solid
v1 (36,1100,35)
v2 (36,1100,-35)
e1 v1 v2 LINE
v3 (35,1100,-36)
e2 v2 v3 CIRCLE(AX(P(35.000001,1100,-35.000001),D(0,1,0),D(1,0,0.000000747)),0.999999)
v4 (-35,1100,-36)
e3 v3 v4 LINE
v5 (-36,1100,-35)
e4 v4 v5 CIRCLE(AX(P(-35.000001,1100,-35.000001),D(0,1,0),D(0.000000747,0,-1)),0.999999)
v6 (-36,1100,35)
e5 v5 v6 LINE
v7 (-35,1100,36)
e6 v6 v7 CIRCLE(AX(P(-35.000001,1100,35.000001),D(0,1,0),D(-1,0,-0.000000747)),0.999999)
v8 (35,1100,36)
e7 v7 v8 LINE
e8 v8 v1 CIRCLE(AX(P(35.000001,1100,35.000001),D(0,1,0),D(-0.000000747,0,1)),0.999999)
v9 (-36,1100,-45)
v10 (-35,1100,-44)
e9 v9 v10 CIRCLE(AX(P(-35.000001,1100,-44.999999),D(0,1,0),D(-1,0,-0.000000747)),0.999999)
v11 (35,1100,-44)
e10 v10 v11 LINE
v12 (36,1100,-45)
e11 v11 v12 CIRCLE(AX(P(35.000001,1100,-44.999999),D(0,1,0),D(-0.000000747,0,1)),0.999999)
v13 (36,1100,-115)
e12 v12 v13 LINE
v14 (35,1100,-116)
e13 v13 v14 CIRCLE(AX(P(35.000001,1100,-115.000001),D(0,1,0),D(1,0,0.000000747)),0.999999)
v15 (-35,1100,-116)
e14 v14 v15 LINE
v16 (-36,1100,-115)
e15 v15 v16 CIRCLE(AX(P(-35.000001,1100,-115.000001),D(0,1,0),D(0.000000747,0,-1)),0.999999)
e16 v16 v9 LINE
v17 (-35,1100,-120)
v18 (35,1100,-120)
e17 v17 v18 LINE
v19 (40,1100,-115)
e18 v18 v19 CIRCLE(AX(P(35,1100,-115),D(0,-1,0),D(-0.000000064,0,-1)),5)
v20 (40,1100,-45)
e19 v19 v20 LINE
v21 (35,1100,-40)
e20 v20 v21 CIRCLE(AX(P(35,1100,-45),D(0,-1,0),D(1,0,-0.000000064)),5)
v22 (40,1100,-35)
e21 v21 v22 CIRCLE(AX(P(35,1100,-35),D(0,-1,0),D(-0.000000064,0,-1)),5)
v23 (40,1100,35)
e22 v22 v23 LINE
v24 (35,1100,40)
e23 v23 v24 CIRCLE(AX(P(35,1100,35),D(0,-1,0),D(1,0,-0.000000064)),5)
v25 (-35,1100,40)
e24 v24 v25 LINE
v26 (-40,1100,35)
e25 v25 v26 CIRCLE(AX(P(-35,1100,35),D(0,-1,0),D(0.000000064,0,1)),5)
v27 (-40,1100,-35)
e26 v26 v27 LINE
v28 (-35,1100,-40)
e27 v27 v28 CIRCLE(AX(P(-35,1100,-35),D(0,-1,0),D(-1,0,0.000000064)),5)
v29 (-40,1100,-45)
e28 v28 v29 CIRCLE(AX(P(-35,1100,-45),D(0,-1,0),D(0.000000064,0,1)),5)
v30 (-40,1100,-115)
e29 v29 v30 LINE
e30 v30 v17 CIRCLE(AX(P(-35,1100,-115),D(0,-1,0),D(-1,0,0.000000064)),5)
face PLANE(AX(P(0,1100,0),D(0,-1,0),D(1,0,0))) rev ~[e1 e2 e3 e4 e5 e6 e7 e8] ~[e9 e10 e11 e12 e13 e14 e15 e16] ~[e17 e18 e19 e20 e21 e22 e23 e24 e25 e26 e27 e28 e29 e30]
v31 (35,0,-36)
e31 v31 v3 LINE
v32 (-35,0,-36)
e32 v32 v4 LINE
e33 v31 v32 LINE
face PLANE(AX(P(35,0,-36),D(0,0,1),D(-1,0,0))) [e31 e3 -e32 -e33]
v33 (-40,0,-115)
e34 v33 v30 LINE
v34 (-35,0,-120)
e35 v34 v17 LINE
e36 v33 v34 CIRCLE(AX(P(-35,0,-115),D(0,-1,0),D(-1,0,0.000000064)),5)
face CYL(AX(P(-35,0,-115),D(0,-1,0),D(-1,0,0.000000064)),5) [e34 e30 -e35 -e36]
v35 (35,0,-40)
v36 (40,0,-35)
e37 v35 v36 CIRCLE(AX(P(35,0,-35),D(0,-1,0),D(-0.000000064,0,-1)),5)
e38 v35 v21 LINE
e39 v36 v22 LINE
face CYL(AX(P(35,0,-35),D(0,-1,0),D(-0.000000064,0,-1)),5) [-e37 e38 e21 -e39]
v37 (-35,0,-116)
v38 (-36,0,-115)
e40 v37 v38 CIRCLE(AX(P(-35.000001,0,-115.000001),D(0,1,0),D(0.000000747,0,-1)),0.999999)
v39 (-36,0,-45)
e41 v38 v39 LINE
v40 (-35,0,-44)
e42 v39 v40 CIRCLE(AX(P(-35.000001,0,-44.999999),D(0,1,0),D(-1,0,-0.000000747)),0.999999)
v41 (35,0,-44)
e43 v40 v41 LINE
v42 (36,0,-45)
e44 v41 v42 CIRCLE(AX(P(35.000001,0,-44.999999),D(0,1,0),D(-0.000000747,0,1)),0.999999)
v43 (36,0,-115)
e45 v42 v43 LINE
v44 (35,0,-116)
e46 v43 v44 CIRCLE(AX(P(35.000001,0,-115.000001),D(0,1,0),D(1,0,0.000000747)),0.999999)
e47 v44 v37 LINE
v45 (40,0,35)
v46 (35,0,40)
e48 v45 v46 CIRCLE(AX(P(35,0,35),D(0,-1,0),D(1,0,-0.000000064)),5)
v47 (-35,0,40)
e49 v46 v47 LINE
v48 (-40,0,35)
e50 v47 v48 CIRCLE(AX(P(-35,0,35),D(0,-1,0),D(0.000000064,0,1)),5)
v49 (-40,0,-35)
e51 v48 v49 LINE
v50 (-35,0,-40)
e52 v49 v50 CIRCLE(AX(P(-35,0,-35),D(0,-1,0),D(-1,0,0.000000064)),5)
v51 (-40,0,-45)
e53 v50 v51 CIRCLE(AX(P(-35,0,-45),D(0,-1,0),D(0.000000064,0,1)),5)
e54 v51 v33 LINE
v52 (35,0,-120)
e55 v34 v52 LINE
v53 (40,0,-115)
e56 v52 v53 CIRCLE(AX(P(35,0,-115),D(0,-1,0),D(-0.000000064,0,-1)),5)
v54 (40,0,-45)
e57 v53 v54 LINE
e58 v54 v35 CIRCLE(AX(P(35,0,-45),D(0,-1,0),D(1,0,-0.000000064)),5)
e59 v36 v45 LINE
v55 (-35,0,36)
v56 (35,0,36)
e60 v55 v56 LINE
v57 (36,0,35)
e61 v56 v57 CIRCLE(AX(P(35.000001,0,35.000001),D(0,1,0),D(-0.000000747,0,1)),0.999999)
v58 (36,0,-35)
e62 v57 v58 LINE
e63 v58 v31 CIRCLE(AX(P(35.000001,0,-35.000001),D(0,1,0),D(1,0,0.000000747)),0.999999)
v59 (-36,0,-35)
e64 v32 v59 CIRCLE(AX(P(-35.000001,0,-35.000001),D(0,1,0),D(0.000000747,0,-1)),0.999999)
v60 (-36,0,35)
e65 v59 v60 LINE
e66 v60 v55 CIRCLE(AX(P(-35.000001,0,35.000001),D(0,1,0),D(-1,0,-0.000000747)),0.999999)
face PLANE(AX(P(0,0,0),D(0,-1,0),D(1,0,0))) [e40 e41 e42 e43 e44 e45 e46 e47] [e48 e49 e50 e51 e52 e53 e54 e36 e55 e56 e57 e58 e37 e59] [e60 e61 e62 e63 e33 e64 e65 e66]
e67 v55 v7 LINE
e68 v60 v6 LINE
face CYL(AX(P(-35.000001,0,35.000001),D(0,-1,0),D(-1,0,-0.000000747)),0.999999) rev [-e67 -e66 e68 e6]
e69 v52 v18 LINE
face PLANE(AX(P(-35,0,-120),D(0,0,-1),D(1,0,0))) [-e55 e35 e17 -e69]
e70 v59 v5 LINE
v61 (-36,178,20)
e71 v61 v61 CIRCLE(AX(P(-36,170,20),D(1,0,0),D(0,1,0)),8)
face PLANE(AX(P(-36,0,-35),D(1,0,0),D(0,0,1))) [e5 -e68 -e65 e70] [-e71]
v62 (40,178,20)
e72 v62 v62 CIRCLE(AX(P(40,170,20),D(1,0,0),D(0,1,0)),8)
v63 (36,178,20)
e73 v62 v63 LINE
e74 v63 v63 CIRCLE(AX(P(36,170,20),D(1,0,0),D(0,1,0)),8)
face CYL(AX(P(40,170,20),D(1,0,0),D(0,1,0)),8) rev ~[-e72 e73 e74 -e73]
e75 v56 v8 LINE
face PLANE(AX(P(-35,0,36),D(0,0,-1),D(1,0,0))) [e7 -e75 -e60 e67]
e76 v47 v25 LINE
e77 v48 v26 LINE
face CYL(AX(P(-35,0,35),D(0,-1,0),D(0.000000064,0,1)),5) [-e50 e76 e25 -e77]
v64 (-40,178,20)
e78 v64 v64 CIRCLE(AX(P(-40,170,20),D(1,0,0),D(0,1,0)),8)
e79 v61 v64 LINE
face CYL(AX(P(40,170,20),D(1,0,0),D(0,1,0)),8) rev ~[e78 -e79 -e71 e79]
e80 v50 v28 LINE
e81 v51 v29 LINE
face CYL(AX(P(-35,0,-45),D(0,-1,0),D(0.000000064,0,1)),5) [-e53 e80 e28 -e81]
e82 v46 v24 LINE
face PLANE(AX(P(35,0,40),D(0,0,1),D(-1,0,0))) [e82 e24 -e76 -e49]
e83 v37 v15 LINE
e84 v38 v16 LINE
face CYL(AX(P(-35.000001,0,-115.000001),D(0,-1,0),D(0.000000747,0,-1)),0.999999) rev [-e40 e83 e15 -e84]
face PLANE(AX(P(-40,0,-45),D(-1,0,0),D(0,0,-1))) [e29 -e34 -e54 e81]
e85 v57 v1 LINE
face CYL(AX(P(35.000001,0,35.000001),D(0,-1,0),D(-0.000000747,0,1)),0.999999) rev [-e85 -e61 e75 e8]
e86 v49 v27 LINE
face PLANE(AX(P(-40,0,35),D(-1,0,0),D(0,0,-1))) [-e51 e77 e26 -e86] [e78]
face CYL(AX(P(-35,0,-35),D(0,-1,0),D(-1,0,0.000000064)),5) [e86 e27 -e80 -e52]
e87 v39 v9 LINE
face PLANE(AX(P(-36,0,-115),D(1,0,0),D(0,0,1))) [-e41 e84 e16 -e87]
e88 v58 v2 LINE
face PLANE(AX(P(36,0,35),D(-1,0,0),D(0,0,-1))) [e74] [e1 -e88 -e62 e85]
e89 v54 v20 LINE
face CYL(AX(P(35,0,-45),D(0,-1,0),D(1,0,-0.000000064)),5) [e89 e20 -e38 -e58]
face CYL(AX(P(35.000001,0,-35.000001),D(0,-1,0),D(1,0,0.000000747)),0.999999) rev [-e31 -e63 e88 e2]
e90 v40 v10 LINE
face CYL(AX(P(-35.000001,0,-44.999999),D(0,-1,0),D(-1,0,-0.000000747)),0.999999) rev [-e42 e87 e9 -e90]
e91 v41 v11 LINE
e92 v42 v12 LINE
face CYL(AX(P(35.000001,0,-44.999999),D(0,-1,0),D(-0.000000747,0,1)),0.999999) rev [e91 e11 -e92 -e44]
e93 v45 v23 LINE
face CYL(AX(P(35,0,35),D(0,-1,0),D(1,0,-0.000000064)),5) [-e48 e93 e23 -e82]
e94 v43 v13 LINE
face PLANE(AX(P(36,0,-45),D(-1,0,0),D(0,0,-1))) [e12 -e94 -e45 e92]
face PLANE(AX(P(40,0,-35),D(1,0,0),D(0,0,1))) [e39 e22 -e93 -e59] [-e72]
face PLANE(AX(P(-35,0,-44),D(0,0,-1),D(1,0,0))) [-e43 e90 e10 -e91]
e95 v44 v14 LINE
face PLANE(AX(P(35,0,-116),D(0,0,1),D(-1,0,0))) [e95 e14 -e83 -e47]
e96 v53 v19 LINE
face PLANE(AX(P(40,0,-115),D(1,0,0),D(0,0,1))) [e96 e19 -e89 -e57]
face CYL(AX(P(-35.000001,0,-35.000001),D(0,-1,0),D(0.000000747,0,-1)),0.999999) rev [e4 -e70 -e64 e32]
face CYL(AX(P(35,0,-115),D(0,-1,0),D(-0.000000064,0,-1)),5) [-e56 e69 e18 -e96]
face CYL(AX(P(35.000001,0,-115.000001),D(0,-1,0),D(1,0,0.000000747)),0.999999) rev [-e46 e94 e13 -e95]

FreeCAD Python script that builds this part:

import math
import FreeCAD as App
import Part
import Sketcher

V = App.Vector
Q = App.Units.Quantity

doc = App.newDocument("Part")
body = doc.addObject("PartDesign::Body", "Body")

sketch1 = body.newObject("Sketcher::SketchObject", "Sketch")
sketch1.AttachmentSupport = (doc.getObject("XZ_Plane"), [""])
sketch1.MapMode = "FlatFace"
sketch1.addGeometry(Part.ArcOfCircle(Part.Circle(V(35, 35, 0), V(0, 0, 1), 5), math.radians(0), math.radians(90)), False)
sketch1.addGeometry(Part.LineSegment(V(35, 40, 0), V(-35, 40, 0)), False)
sketch1.addGeometry(Part.ArcOfCircle(Part.Circle(V(-35, 35, 0), V(0, 0, 1), 5), math.radians(90), math.radians(180)), False)
sketch1.addGeometry(Part.LineSegment(V(-40, 35, 0), V(-40, -35, 0)), False)
sketch1.addGeometry(Part.ArcOfCircle(Part.Circle(V(-35, -35, 0), V(0, 0, 1), 5), math.radians(180), math.radians(270)), False)
sketch1.addGeometry(Part.ArcOfCircle(Part.Circle(V(-35, -45, 0), V(0, 0, 1), 5), math.radians(90), math.radians(180)), False)
sketch1.addGeometry(Part.LineSegment(V(-40, -45, 0), V(-40, -115, 0)), False)
sketch1.addGeometry(Part.ArcOfCircle(Part.Circle(V(-35, -115, 0), V(0, 0, 1), 5), math.radians(180), math.radians(270)), False)
sketch1.addGeometry(Part.LineSegment(V(-35, -120, 0), V(35, -120, 0)), False)
sketch1.addGeometry(Part.ArcOfCircle(Part.Circle(V(35, -115, 0), V(0, 0, 1), 5), math.radians(-90), math.radians(0)), False)
sketch1.addGeometry(Part.LineSegment(V(40, -115, 0), V(40, -45, 0)), False)
sketch1.addGeometry(Part.ArcOfCircle(Part.Circle(V(35, -45, 0), V(0, 0, 1), 5), math.radians(0), math.radians(90)), False)
sketch1.addGeometry(Part.ArcOfCircle(Part.Circle(V(35, -35, 0), V(0, 0, 1), 5), math.radians(-90), math.radians(0)), False)
sketch1.addGeometry(Part.LineSegment(V(40, -35, 0), V(40, 35, 0)), False)
sketch1.addGeometry(Part.LineSegment(V(-36, -115, 0), V(-36, -45, 0)), False)
sketch1.addGeometry(Part.ArcOfCircle(Part.Circle(V(-35, -45, 0), V(0, 0, 1), 1), math.radians(90), math.radians(180)), False)
sketch1.addGeometry(Part.LineSegment(V(-35, -44, 0), V(35, -44, 0)), False)
sketch1.addGeometry(Part.ArcOfCircle(Part.Circle(V(35, -45, 0), V(0, 0, 1), 1), math.radians(0), math.radians(90)), False)
sketch1.addGeometry(Part.LineSegment(V(36, -45, 0), V(36, -115, 0)), False)
sketch1.addGeometry(Part.ArcOfCircle(Part.Circle(V(35, -115, 0), V(0, 0, 1), 1), math.radians(-90), math.radians(0)), False)
sketch1.addGeometry(Part.LineSegment(V(35, -116, 0), V(-35, -116, 0)), False)
sketch1.addGeometry(Part.ArcOfCircle(Part.Circle(V(-35, -115, 0), V(0, 0, 1), 1), math.radians(180), math.radians(270)), False)
sketch1.addGeometry(Part.LineSegment(V(-36, -35, 0), V(-36, 35, 0)), False)
sketch1.addGeometry(Part.ArcOfCircle(Part.Circle(V(-35, 35, 0), V(0, 0, 1), 1), math.radians(90), math.radians(180)), False)
sketch1.addGeometry(Part.LineSegment(V(-35, 36, 0), V(35, 36, 0)), False)
sketch1.addGeometry(Part.ArcOfCircle(Part.Circle(V(35, 35, 0), V(0, 0, 1), 1), math.radians(0), math.radians(90)), False)
sketch1.addGeometry(Part.LineSegment(V(36, 35, 0), V(36, -35, 0)), False)
sketch1.addGeometry(Part.ArcOfCircle(Part.Circle(V(35, -35, 0), V(0, 0, 1), 1), math.radians(-90), math.radians(0)), False)
sketch1.addGeometry(Part.LineSegment(V(35, -36, 0), V(-35, -36, 0)), False)
sketch1.addGeometry(Part.ArcOfCircle(Part.Circle(V(-35, -35, 0), V(0, 0, 1), 1), math.radians(180), math.radians(270)), False)
sketch1.addConstraint(Sketcher.Constraint("Tangent", 0, 2, 1, 1))
sketch1.addConstraint(Sketcher.Constraint("Tangent", 1, 2, 2, 1))
sketch1.addConstraint(Sketcher.Constraint("Tangent", 2, 2, 3, 1))
sketch1.addConstraint(Sketcher.Constraint("Tangent", 3, 2, 4, 1))
sketch1.addConstraint(Sketcher.Constraint("Tangent", 4, 2, 5, 1))
sketch1.addConstraint(Sketcher.Constraint("Tangent", 5, 2, 6, 1))
sketch1.addConstraint(Sketcher.Constraint("Tangent", 6, 2, 7, 1))
sketch1.addConstraint(Sketcher.Constraint("Tangent", 7, 2, 8, 1))
sketch1.addConstraint(Sketcher.Constraint("Tangent", 8, 2, 9, 1))
sketch1.addConstraint(Sketcher.Constraint("Tangent", 9, 2, 10, 1))
sketch1.addConstraint(Sketcher.Constraint("Tangent", 10, 2, 11, 1))
sketch1.addConstraint(Sketcher.Constraint("Tangent", 11, 2, 12, 1))
sketch1.addConstraint(Sketcher.Constraint("Tangent", 12, 2, 13, 1))
sketch1.addConstraint(Sketcher.Constraint("Tangent", 13, 2, 0, 1))
sketch1.addConstraint(Sketcher.Constraint("Tangent", 14, 2, 15, 2))
sketch1.addConstraint(Sketcher.Constraint("Tangent", 15, 1, 16, 1))
sketch1.addConstraint(Sketcher.Constraint("Tangent", 16, 2, 17, 2))
sketch1.addConstraint(Sketcher.Constraint("Tangent", 17, 1, 18, 1))
sketch1.addConstraint(Sketcher.Constraint("Tangent", 18, 2, 19, 2))
sketch1.addConstraint(Sketcher.Constraint("Tangent", 19, 1, 20, 1))
sketch1.addConstraint(Sketcher.Constraint("Tangent", 20, 2, 21, 2))
sketch1.addConstraint(Sketcher.Constraint("Tangent", 21, 1, 14, 1))
sketch1.addConstraint(Sketcher.Constraint("Tangent", 22, 2, 23, 2))
sketch1.addConstraint(Sketcher.Constraint("Tangent", 23, 1, 24, 1))
sketch1.addConstraint(Sketcher.Constraint("Tangent", 24, 2, 25, 2))
sketch1.addConstraint(Sketcher.Constraint("Tangent", 25, 1, 26, 1))
sketch1.addConstraint(Sketcher.Constraint("Tangent", 26, 2, 27, 2))
sketch1.addConstraint(Sketcher.Constraint("Tangent", 27, 1, 28, 1))
sketch1.addConstraint(Sketcher.Constraint("Tangent", 28, 2, 29, 2))
sketch1.addConstraint(Sketcher.Constraint("Tangent", 29, 1, 22, 1))
sketch1.addConstraint(Sketcher.Constraint("Horizontal", 1))
sketch1.addConstraint(Sketcher.Constraint("Vertical", 3))
sketch1.addConstraint(Sketcher.Constraint("Vertical", 6))
sketch1.addConstraint(Sketcher.Constraint("Horizontal", 8))
sketch1.addConstraint(Sketcher.Constraint("Vertical", 10))
sketch1.addConstraint(Sketcher.Constraint("Vertical", 13))
sketch1.addConstraint(Sketcher.Constraint("Vertical", 14))
sketch1.addConstraint(Sketcher.Constraint("Horizontal", 16))
sketch1.addConstraint(Sketcher.Constraint("Vertical", 18))
sketch1.addConstraint(Sketcher.Constraint("Horizontal", 20))
sketch1.addConstraint(Sketcher.Constraint("Vertical", 22))
sketch1.addConstraint(Sketcher.Constraint("Horizontal", 24))
sketch1.addConstraint(Sketcher.Constraint("Vertical", 26))
sketch1.addConstraint(Sketcher.Constraint("Horizontal", 28))
sketch1.addConstraint(Sketcher.Constraint("Coincident", 15, 3, 5, 3))
sketch1.addConstraint(Sketcher.Constraint("Coincident", 17, 3, 11, 3))
sketch1.addConstraint(Sketcher.Constraint("Coincident", 19, 3, 9, 3))
sketch1.addConstraint(Sketcher.Constraint("Coincident", 21, 3, 7, 3))
sketch1.addConstraint(Sketcher.Constraint("Coincident", 23, 3, 2, 3))
sketch1.addConstraint(Sketcher.Constraint("Coincident", 25, 3, 0, 3))
sketch1.addConstraint(Sketcher.Constraint("Coincident", 27, 3, 12, 3))
sketch1.addConstraint(Sketcher.Constraint("Equal", 0, 2))
sketch1.addConstraint(Sketcher.Constraint("Equal", 2, 4))
sketch1.addConstraint(Sketcher.Constraint("Equal", 4, 5))
sketch1.addConstraint(Sketcher.Constraint("Equal", 5, 7))
sketch1.addConstraint(Sketcher.Constraint("Equal", 7, 9))
sketch1.addConstraint(Sketcher.Constraint("Equal", 9, 11))
sketch1.addConstraint(Sketcher.Constraint("Equal", 11, 12))
sketch1.addConstraint(Sketcher.Constraint("Equal", 21, 23))
sketch1.addConstraint(Sketcher.Constraint("Equal", 27, 29))
sketch1.addConstraint(Sketcher.Constraint("Symmetric", 0, 3, 4, 3, -1, 1))
sketch1.addConstraint(Sketcher.Constraint("Vertical", 4, 3, 5, 3))
sketch1.addConstraint(Sketcher.Constraint("Vertical", 0, 3, 9, 3))
sketch1.addConstraint(Sketcher.Constraint("Equal", 28, 3))
sketch1.addConstraint(Sketcher.Constraint("Equal", 3, 6))
sketch1.addConstraint(Sketcher.Constraint("Radius", 0, Q("5 mm")))
sketch1.addConstraint(Sketcher.Constraint("Radius", 15, Q("0.999999 mm")))
sketch1.addConstraint(Sketcher.Constraint("DistanceX", 1, 2, 1, 1, Q("70 mm")))
pad1 = body.newObject("PartDesign::Pad", "Pad")
pad1.Profile = sketch1
pad1.Length = 1100
pad1.Reversed = True

sketch2 = body.newObject("Sketcher::SketchObject", "Sketch001")
sketch2.AttachmentSupport = (doc.getObject("YZ_Plane"), [""])
sketch2.MapMode = "FlatFace"
sketch2.AttachmentOffset = App.Placement(V(0, 0, 40), App.Rotation())
sketch2.addGeometry(Part.Circle(V(170, 20, 0), V(0, 0, 1), 8), False)
sketch2.addConstraint(Sketcher.Constraint("Diameter", 0, Q("16 mm")))
sketch2.addConstraint(Sketcher.Constraint("DistanceX", -1, 1, 0, 3, Q("170 mm")))
sketch2.addConstraint(Sketcher.Constraint("DistanceY", -1, 1, 0, 3, Q("20 mm")))
pocket1 = body.newObject("PartDesign::Pocket", "Pocket")
pocket1.Profile = sketch2
pocket1.Type = "ThroughAll"

doc.recompute()
